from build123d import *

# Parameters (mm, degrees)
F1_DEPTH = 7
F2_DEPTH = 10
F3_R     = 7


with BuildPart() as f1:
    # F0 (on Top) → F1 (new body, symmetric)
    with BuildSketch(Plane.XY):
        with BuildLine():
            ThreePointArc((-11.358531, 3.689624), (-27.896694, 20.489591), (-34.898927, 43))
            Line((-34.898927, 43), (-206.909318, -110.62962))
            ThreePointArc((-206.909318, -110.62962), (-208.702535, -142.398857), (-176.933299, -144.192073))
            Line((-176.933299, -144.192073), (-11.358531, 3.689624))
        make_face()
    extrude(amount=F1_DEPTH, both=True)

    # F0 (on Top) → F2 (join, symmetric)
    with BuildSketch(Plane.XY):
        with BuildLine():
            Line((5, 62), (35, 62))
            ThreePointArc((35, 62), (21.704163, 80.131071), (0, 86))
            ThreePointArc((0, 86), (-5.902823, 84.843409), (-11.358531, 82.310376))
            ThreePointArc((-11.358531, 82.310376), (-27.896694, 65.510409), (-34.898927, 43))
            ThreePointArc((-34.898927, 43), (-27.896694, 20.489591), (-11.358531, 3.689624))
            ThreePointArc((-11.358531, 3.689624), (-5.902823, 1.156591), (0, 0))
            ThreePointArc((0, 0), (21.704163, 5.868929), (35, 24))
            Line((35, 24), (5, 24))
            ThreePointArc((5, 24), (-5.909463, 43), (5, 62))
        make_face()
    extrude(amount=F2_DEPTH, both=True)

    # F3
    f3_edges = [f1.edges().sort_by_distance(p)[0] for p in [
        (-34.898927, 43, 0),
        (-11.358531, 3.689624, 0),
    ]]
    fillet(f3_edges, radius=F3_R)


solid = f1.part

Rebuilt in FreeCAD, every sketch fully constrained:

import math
import FreeCAD as App
import Part
import Sketcher
from FreeCAD import Vector
Q = App.Units.Quantity


def edges_at(feature, points):
    """Names of the edges that pass closest to the given points."""
    edges = feature.Shape.Edges
    near = lambda p: min(range(len(edges)), key=lambda i: edges[i].distToShape(Part.Vertex(*p))[0])
    return sorted({f"Edge{near(p) + 1}" for p in points})

doc = App.newDocument("Part")
params = doc.addObject("Spreadsheet::Sheet", "Params")
for row, (alias, value) in enumerate([
    ("sketch1_radius", "50.000001 mm"),
    ("sketch1_radius2", "22.5 mm"),
    ("sketch1_length", "222 mm"),
    ("pad1_length", "14 mm"),
    ("sketch2_radius", "33.999999 mm"),
    ("sketch2_radius2", "50.000001 mm"),
    ("sketch2_radius3", "22.000001 mm"),
    ("sketch2_width", "30 mm"),
    ("pad2_length", "20 mm"),
    ("fillet_radius", "7 mm"),
], start=1):
    params.set(f"A{row}", alias)
    params.set(f"B{row}", "=" + value)
    params.setAlias(f"B{row}", alias)

body = doc.addObject("PartDesign::Body", "Body")

sketch1 = body.newObject("Sketcher::SketchObject", "Sketch")
sketch1.AttachmentSupport = (doc.getObject("XY_Plane"), [""])
sketch1.MapMode = "FlatFace"
sketch1.addGeometry(Part.ArcOfCircle(Part.Circle(Vector(15, 46, 0), Vector(0, 0, 1), 50), math.radians(-176), math.radians(-122)), False)
sketch1.addGeometry(Part.LineSegment(Vector(-35, 43, 0), Vector(-207, -111, 0)), False)
sketch1.addGeometry(Part.ArcOfCircle(Part.Circle(Vector(-192, -127, 0), Vector(0, 0, 1), 22), math.radians(132), math.radians(312)), False)
sketch1.addGeometry(Part.LineSegment(Vector(-177, -144, 0), Vector(-11, 4, 0)), False)
sketch1.addConstraint(Sketcher.Constraint("Coincident", 0, 1, 1, 1))
sketch1.addConstraint(Sketcher.Constraint("Tangent", 1, 2, 2, 1))
sketch1.addConstraint(Sketcher.Constraint("Tangent", 2, 2, 3, 1))
sketch1.addConstraint(Sketcher.Constraint("Coincident", 3, 2, 0, 2))
sketch1.addConstraint(Sketcher.Constraint("Parallel", 1, 3))
sketch1.addConstraint(Sketcher.Constraint("Radius", 0, Q("50.000001 mm")))
sketch1.addConstraint(Sketcher.Constraint("Radius", 2, Q("22.5 mm")))
sketch1.addConstraint(Sketcher.Constraint("Distance", 3, Q("222 mm")))
sketch1.addConstraint(Sketcher.Constraint("DistanceX", -1, 1, 0, 3, Q("15.000001 mm")))
sketch1.addConstraint(Sketcher.Constraint("DistanceY", -1, 1, 0, 1, Q("43 mm")))
sketch1.addConstraint(Sketcher.Constraint("DistanceX", 2, 2, -1, 1, Q("176.933299 mm")))
sketch1.addConstraint(Sketcher.Constraint("Distance", 1, Q("230.628781 mm")))
sketch1.setExpression("Constraints[5]", "Params.sketch1_radius")
sketch1.setExpression("Constraints[6]", "Params.sketch1_radius2")
sketch1.setExpression("Constraints[7]", "Params.sketch1_length")
pad1 = body.newObject("PartDesign::Pad", "Pad")
pad1.Profile = sketch1
pad1.setExpression("Length", "Params.pad1_length")
pad1.Midplane = True

sketch2 = body.newObject("Sketcher::SketchObject", "Sketch001")
sketch2.AttachmentSupport = (doc.getObject("XY_Plane"), [""])
sketch2.MapMode = "FlatFace"
sketch2.addGeometry(Part.LineSegment(Vector(5, 62, 0), Vector(35, 62, 0)), False)
sketch2.addGeometry(Part.ArcOfCircle(Part.Circle(Vector(2, 52, 0), Vector(0, 0, 1), 34), math.radians(17), math.radians(94)), False)
sketch2.addGeometry(Part.ArcOfCircle(Part.Circle(Vector(2, 61, 0), Vector(0, 0, 1), 25), math.radians(94), math.radians(122)), False)
sketch2.addGeometry(Part.ArcOfCircle(Part.Circle(Vector(15, 40, 0), Vector(0, 0, 1), 50), math.radians(122), math.radians(176)), False)
sketch2.addGeometry(Part.ArcOfCircle(Part.Circle(Vector(15, 46, 0), Vector(0, 0, 1), 50), math.radians(-176), math.radians(-122)), False)
sketch2.addGeometry(Part.ArcOfCircle(Part.Circle(Vector(2, 25, 0), Vector(0, 0, 1), 25), math.radians(-122), math.radians(-94)), False)
sketch2.addGeometry(Part.ArcOfCircle(Part.Circle(Vector(2, 34, 0), Vector(0, 0, 1), 34), math.radians(-94), math.radians(-17)), False)
sketch2.addGeometry(Part.LineSegment(Vector(35, 24, 0), Vector(5, 24, 0)), False)
sketch2.addGeometry(Part.ArcOfCircle(Part.Circle(Vector(16, 43, 0), Vector(0, 0, 1), 22), math.radians(120), math.radians(240)), False)
sketch2.addConstraint(Sketcher.Constraint("Coincident", 0, 2, 1, 1))
sketch2.addConstraint(Sketcher.Constraint("Tangent", 1, 2, 2, 1))
sketch2.addConstraint(Sketcher.Constraint("Tangent", 2, 2, 3, 1))
sketch2.addConstraint(Sketcher.Constraint("Coincident", 3, 2, 4, 1))
sketch2.addConstraint(Sketcher.Constraint("Tangent", 4, 2, 5, 1))
sketch2.addConstraint(Sketcher.Constraint("Tangent", 5, 2, 6, 1))
sketch2.addConstraint(Sketcher.Constraint("Coincident", 6, 2, 7, 1))
sketch2.addConstraint(Sketcher.Constraint("Coincident", 7, 2, 8, 2))
sketch2.addConstraint(Sketcher.Constraint("Coincident", 8, 1, 0, 1))
sketch2.addConstraint(Sketcher.Constraint("Horizontal", 0))
sketch2.addConstraint(Sketcher.Constraint("Horizontal", 7))
sketch2.addConstraint(Sketcher.Constraint("Coincident", 5, 2, -1, 1))
sketch2.addConstraint(Sketcher.Constraint("Equal", 3, 4))
sketch2.addConstraint(Sketcher.Constraint("Equal", 2, 5))
sketch2.addConstraint(Sketcher.Constraint("Equal", 1, 6))
sketch2.addConstraint(Sketcher.Constraint("PointOnObject", 1, 2, -2))
sketch2.addConstraint(Sketcher.Constraint("Horizontal", 8, 3, 3, 2))
sketch2.addConstraint(Sketcher.Constraint("Vertical", 3, 3, 4, 3))
sketch2.addConstraint(Sketcher.Constraint("Vertical", 2, 3, 5, 3))
sketch2.addConstraint(Sketcher.Constraint("Vertical", 0, 2, 6, 2))
sketch2.addConstraint(Sketcher.Constraint("Radius", 1, Q("33.999999 mm")))
sketch2.addConstraint(Sketcher.Constraint("Radius", 3, Q("50.000001 mm")))
sketch2.addConstraint(Sketcher.Constraint("Radius", 8, Q("22.000001 mm")))
sketch2.addConstraint(Sketcher.Constraint("DistanceX", 0, 1, 0, 2, Q("30 mm")))
sketch2.addConstraint(Sketcher.Constraint("DistanceX", -1, 1, 3, 3, Q("15.000001 mm")))
sketch2.addConstraint(Sketcher.Constraint("DistanceY", -1, 1, 8, 3, Q("43 mm")))
sketch2.addConstraint(Sketcher.Constraint("DistanceX", -1, 1, 0, 2, Q("35 mm")))
sketch2.addConstraint(Sketcher.Constraint("DistanceY", -1, 1, 0, 2, Q("62 mm")))
sketch2.addConstraint(Sketcher.Constraint("Radius", 2, Q("25.000005 mm")))
sketch2.setExpression("Constraints[20]", "Params.sketch2_radius")
sketch2.setExpression("Constraints[21]", "Params.sketch2_radius2")
sketch2.setExpression("Constraints[22]", "Params.sketch2_radius3")
sketch2.setExpression("Constraints[23]", "Params.sketch2_width")
pad2 = body.newObject("PartDesign::Pad", "Pad001")
pad2.Profile = sketch2
pad2.setExpression("Length", "Params.pad2_length")
pad2.Midplane = True
doc.recompute()

fillet = body.newObject("PartDesign::Fillet", "Fillet")
fillet.Base = (pad2, edges_at(pad2, [(-34.899, 43, 0), (-11.359, 3.69, 0)]))
fillet.setExpression("Radius", "Params.fillet_radius")

doc.recompute()
